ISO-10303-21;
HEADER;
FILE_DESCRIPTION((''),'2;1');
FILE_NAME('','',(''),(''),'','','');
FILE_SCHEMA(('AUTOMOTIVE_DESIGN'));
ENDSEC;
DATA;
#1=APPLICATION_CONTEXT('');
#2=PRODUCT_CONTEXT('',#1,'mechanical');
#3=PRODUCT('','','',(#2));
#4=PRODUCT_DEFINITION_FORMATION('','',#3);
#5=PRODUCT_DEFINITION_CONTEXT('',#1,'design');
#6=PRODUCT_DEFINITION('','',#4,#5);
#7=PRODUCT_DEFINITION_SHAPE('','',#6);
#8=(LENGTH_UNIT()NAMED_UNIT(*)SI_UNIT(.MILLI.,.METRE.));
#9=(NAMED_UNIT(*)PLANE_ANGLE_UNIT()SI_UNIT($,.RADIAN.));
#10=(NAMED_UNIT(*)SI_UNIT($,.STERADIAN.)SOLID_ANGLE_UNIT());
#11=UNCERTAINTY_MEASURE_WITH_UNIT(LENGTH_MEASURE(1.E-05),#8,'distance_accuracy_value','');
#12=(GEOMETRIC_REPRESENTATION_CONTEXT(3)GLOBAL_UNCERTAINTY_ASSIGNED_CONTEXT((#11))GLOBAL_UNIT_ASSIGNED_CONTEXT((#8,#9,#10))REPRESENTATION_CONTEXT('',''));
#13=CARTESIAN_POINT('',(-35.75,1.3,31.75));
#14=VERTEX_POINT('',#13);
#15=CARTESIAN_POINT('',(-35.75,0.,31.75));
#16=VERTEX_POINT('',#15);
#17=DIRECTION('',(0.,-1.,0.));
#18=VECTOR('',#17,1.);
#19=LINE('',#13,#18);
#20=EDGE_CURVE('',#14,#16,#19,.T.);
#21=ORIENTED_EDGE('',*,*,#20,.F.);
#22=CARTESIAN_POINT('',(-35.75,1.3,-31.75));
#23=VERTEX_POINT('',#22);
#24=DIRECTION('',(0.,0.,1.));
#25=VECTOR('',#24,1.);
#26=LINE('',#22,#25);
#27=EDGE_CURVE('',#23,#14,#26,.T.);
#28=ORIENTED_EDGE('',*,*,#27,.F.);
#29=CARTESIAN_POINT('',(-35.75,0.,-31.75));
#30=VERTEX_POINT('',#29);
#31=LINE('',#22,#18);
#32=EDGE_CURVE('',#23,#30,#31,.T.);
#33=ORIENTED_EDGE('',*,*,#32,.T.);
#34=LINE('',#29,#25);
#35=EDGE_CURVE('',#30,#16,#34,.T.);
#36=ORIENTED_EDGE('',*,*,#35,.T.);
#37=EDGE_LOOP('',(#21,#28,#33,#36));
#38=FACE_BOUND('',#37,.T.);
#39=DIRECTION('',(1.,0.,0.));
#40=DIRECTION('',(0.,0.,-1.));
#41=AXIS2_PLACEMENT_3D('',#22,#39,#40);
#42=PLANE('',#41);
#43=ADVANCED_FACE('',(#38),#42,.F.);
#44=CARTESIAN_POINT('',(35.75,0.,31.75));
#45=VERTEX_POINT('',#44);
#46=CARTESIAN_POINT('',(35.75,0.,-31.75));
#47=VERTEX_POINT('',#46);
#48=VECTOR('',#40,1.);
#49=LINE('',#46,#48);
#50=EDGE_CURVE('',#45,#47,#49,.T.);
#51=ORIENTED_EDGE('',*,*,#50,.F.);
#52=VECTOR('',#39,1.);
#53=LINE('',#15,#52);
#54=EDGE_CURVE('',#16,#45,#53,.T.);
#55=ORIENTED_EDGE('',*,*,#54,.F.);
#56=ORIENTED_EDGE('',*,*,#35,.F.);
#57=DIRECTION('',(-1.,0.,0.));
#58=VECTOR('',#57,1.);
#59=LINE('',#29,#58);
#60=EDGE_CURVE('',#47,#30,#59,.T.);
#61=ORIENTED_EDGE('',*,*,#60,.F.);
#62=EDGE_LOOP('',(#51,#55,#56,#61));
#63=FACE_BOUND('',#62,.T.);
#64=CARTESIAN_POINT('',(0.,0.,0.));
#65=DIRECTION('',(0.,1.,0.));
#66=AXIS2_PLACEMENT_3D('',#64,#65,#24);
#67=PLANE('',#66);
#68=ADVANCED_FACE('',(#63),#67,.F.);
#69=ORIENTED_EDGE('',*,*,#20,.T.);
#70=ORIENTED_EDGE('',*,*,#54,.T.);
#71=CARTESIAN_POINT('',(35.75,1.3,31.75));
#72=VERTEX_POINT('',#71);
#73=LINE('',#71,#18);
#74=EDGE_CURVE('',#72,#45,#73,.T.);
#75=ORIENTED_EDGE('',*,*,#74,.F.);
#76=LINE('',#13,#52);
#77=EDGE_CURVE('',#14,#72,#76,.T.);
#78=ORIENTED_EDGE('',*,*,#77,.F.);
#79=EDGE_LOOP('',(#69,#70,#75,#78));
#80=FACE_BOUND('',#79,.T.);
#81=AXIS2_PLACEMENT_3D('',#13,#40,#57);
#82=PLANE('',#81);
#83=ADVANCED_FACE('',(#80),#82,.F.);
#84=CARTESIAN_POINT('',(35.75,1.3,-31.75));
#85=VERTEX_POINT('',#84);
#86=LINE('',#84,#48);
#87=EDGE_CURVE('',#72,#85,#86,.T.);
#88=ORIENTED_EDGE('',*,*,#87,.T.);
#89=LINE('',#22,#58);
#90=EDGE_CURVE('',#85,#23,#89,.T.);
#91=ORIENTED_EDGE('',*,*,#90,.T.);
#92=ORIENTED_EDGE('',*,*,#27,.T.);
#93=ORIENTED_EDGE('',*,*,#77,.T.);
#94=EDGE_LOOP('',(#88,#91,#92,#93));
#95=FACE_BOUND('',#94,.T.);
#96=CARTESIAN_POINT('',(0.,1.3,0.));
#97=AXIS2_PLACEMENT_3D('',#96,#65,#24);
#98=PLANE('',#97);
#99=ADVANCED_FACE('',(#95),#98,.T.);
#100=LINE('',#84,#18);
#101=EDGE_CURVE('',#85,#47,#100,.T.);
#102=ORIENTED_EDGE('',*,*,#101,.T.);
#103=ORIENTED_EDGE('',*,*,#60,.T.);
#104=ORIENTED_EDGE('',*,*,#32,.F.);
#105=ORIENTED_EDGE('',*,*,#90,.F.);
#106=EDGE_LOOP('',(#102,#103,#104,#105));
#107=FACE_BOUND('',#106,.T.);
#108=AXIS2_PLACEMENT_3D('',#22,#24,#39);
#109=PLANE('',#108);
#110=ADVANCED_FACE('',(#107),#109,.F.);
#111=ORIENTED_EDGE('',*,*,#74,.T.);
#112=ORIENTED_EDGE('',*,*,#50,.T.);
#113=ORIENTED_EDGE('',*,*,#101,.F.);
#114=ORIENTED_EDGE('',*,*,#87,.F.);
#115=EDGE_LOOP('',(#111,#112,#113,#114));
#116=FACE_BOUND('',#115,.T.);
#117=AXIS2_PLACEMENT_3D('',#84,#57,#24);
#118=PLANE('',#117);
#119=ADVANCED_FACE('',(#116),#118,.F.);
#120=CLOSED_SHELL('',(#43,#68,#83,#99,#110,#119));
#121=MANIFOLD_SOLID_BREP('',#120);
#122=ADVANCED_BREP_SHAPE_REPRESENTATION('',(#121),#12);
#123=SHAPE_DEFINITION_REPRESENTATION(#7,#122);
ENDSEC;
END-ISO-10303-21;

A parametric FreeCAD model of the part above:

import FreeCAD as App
import Part
import Sketcher

doc = App.newDocument("Part")
body = doc.addObject("PartDesign::Body", "Body")

# Sketch on XZ plane
sketch1 = body.newObject("Sketcher::SketchObject", "Sketch")
sketch1.AttachmentSupport = (doc.getObject("XZ_Plane"), [""])
sketch1.MapMode = "FlatFace"
sketch1.addGeometry(Part.LineSegment(App.Vector(-36, -32, 0), App.Vector(-36, 32, 0)), False)
sketch1.addGeometry(Part.LineSegment(App.Vector(-36, 32, 0), App.Vector(36, 32, 0)), False)
sketch1.addGeometry(Part.LineSegment(App.Vector(36, 32, 0), App.Vector(36, -32, 0)), False)
sketch1.addGeometry(Part.LineSegment(App.Vector(36, -32, 0), App.Vector(-36, -32, 0)), False)
sketch1.addConstraint(Sketcher.Constraint("Coincident", 0, 2, 1, 1))
sketch1.addConstraint(Sketcher.Constraint("Coincident", 1, 2, 2, 1))
sketch1.addConstraint(Sketcher.Constraint("Coincident", 2, 2, 3, 1))
sketch1.addConstraint(Sketcher.Constraint("Coincident", 3, 2, 0, 1))
sketch1.addConstraint(Sketcher.Constraint("Vertical", 0))
sketch1.addConstraint(Sketcher.Constraint("Horizontal", 1))
sketch1.addConstraint(Sketcher.Constraint("Vertical", 2))
sketch1.addConstraint(Sketcher.Constraint("Horizontal", 3))
sketch1.addConstraint(Sketcher.Constraint("Symmetric", 0, 2, 2, 2, -1, 1))
sketch1.addConstraint(Sketcher.Constraint("DistanceX", 1, 1, 1, 2, 71.5))
sketch1.addConstraint(Sketcher.Constraint("DistanceY", 0, 1, 0, 2, 63.5))
pad1 = body.newObject("PartDesign::Pad", "Pad")
pad1.Profile = sketch1
pad1.Length = 1.3
pad1.Reversed = True

doc.recompute()
